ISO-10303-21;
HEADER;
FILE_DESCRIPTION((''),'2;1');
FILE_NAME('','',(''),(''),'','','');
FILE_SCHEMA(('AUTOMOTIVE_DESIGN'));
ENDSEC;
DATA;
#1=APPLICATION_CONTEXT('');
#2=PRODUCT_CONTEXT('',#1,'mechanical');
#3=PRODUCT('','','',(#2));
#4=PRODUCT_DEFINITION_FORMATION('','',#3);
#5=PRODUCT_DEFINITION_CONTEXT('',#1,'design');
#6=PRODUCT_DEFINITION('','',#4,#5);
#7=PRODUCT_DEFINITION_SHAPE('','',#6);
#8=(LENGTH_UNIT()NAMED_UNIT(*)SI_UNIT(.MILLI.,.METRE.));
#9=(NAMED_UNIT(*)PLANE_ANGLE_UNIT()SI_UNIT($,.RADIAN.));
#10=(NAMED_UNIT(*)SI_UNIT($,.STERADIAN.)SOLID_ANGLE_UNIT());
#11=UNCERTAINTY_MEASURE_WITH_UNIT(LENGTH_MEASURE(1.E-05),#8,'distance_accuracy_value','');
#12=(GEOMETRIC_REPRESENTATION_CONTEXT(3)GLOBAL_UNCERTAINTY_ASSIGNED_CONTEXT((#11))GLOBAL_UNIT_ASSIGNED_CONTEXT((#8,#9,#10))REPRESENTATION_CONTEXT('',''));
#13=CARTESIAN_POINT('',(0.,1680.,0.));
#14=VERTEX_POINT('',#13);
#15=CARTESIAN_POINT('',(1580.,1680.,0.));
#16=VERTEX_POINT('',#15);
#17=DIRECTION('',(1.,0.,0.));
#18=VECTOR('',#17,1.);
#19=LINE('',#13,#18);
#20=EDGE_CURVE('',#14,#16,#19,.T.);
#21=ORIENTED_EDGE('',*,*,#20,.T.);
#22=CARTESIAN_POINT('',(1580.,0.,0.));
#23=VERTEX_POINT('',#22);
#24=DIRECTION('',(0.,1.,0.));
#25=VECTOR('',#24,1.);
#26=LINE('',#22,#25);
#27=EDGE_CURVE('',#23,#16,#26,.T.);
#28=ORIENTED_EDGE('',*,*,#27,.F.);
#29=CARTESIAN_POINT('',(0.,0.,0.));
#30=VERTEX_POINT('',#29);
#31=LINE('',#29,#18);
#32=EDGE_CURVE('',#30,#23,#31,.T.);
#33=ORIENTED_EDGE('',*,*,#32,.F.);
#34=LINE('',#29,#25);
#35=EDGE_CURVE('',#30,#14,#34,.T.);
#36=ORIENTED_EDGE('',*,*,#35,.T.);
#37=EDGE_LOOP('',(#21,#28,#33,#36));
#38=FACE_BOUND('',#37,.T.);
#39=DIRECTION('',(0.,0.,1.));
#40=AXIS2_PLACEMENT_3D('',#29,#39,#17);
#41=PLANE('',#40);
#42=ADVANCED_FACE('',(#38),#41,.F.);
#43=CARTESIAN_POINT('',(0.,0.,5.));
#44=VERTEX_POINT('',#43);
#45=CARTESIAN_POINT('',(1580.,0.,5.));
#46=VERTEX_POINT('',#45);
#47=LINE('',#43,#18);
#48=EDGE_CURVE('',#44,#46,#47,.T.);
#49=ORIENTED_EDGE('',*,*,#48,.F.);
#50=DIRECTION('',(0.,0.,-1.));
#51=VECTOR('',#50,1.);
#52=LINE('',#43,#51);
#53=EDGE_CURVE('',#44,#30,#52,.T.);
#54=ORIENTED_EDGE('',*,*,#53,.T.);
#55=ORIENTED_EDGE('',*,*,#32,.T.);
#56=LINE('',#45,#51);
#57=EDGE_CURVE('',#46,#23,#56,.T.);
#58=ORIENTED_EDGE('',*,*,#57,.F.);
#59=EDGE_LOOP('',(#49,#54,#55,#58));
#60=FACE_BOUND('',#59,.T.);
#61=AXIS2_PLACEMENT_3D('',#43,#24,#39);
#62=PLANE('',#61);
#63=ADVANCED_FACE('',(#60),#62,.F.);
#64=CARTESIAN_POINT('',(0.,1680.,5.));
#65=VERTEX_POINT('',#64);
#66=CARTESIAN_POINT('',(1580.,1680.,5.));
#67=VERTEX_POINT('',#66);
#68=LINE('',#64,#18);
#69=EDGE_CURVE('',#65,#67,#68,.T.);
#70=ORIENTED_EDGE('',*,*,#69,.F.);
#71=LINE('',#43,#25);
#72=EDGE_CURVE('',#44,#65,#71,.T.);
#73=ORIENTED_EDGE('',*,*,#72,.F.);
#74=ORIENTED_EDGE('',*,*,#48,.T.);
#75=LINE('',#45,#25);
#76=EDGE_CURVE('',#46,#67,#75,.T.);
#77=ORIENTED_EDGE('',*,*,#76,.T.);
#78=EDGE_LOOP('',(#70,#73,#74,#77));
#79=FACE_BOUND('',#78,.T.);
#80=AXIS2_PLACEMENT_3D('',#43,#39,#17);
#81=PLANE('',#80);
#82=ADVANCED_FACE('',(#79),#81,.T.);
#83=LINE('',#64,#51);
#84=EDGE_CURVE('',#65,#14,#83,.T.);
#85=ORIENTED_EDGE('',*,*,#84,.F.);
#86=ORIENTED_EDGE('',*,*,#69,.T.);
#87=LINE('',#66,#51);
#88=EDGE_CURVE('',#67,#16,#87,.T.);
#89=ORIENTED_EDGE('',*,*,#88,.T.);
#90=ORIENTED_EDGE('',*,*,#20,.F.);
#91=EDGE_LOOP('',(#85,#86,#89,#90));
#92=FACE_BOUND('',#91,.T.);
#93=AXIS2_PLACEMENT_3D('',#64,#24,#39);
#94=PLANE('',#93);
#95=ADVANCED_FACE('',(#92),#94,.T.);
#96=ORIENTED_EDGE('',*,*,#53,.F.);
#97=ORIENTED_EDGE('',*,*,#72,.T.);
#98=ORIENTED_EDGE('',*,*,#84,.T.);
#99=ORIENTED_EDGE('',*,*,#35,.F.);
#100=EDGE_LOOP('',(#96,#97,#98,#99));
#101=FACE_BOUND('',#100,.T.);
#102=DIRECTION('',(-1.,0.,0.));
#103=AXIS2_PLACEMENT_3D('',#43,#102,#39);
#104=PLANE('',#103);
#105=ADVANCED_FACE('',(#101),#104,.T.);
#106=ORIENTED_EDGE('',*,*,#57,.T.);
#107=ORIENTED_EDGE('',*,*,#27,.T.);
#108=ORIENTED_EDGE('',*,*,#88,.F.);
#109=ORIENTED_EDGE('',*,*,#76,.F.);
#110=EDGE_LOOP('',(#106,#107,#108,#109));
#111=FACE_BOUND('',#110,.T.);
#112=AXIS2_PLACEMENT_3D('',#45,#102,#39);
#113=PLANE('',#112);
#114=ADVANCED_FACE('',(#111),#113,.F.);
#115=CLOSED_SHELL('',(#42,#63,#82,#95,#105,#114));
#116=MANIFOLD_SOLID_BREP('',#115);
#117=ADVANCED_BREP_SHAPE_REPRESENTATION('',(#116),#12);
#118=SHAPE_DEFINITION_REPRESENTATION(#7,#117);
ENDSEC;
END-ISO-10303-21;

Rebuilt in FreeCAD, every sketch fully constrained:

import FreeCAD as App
import Part
import Sketcher

V = App.Vector
Q = App.Units.Quantity

doc = App.newDocument("Part")
body = doc.addObject("PartDesign::Body", "Body")

# Sketch on XY plane
sketch1 = body.newObject("Sketcher::SketchObject", "Sketch")
sketch1.AttachmentSupport = (doc.getObject("XY_Plane"), [""])
sketch1.MapMode = "FlatFace"
sketch1.addGeometry([
    Part.LineSegment(V(0, 1680, 0), V(0, 0, 0)),
    Part.LineSegment(V(0, 0, 0), V(1580, 0, 0)),
    Part.LineSegment(V(1580, 0, 0), V(1580, 1680, 0)),
    Part.LineSegment(V(1580, 1680, 0), V(0, 1680, 0)),
], False)
sketch1.addConstraint([
    Sketcher.Constraint("Coincident", 0, 2, 1, 1),
    Sketcher.Constraint("Coincident", 1, 2, 2, 1),
    Sketcher.Constraint("Coincident", 2, 2, 3, 1),
    Sketcher.Constraint("Coincident", 3, 2, 0, 1),
    Sketcher.Constraint("Vertical", 0),
    Sketcher.Constraint("Horizontal", 1),
    Sketcher.Constraint("Vertical", 2),
    Sketcher.Constraint("Horizontal", 3),
    Sketcher.Constraint("Coincident", 0, 2, -1, 1),
    Sketcher.Constraint("DistanceX", 1, 1, 1, 2, Q("1580 mm")),
    Sketcher.Constraint("DistanceY", 0, 2, 0, 1, Q("1680 mm")),
])
pad1 = body.newObject("PartDesign::Pad", "Pad")
pad1.Profile = sketch1
pad1.Length = 5

doc.recompute()
